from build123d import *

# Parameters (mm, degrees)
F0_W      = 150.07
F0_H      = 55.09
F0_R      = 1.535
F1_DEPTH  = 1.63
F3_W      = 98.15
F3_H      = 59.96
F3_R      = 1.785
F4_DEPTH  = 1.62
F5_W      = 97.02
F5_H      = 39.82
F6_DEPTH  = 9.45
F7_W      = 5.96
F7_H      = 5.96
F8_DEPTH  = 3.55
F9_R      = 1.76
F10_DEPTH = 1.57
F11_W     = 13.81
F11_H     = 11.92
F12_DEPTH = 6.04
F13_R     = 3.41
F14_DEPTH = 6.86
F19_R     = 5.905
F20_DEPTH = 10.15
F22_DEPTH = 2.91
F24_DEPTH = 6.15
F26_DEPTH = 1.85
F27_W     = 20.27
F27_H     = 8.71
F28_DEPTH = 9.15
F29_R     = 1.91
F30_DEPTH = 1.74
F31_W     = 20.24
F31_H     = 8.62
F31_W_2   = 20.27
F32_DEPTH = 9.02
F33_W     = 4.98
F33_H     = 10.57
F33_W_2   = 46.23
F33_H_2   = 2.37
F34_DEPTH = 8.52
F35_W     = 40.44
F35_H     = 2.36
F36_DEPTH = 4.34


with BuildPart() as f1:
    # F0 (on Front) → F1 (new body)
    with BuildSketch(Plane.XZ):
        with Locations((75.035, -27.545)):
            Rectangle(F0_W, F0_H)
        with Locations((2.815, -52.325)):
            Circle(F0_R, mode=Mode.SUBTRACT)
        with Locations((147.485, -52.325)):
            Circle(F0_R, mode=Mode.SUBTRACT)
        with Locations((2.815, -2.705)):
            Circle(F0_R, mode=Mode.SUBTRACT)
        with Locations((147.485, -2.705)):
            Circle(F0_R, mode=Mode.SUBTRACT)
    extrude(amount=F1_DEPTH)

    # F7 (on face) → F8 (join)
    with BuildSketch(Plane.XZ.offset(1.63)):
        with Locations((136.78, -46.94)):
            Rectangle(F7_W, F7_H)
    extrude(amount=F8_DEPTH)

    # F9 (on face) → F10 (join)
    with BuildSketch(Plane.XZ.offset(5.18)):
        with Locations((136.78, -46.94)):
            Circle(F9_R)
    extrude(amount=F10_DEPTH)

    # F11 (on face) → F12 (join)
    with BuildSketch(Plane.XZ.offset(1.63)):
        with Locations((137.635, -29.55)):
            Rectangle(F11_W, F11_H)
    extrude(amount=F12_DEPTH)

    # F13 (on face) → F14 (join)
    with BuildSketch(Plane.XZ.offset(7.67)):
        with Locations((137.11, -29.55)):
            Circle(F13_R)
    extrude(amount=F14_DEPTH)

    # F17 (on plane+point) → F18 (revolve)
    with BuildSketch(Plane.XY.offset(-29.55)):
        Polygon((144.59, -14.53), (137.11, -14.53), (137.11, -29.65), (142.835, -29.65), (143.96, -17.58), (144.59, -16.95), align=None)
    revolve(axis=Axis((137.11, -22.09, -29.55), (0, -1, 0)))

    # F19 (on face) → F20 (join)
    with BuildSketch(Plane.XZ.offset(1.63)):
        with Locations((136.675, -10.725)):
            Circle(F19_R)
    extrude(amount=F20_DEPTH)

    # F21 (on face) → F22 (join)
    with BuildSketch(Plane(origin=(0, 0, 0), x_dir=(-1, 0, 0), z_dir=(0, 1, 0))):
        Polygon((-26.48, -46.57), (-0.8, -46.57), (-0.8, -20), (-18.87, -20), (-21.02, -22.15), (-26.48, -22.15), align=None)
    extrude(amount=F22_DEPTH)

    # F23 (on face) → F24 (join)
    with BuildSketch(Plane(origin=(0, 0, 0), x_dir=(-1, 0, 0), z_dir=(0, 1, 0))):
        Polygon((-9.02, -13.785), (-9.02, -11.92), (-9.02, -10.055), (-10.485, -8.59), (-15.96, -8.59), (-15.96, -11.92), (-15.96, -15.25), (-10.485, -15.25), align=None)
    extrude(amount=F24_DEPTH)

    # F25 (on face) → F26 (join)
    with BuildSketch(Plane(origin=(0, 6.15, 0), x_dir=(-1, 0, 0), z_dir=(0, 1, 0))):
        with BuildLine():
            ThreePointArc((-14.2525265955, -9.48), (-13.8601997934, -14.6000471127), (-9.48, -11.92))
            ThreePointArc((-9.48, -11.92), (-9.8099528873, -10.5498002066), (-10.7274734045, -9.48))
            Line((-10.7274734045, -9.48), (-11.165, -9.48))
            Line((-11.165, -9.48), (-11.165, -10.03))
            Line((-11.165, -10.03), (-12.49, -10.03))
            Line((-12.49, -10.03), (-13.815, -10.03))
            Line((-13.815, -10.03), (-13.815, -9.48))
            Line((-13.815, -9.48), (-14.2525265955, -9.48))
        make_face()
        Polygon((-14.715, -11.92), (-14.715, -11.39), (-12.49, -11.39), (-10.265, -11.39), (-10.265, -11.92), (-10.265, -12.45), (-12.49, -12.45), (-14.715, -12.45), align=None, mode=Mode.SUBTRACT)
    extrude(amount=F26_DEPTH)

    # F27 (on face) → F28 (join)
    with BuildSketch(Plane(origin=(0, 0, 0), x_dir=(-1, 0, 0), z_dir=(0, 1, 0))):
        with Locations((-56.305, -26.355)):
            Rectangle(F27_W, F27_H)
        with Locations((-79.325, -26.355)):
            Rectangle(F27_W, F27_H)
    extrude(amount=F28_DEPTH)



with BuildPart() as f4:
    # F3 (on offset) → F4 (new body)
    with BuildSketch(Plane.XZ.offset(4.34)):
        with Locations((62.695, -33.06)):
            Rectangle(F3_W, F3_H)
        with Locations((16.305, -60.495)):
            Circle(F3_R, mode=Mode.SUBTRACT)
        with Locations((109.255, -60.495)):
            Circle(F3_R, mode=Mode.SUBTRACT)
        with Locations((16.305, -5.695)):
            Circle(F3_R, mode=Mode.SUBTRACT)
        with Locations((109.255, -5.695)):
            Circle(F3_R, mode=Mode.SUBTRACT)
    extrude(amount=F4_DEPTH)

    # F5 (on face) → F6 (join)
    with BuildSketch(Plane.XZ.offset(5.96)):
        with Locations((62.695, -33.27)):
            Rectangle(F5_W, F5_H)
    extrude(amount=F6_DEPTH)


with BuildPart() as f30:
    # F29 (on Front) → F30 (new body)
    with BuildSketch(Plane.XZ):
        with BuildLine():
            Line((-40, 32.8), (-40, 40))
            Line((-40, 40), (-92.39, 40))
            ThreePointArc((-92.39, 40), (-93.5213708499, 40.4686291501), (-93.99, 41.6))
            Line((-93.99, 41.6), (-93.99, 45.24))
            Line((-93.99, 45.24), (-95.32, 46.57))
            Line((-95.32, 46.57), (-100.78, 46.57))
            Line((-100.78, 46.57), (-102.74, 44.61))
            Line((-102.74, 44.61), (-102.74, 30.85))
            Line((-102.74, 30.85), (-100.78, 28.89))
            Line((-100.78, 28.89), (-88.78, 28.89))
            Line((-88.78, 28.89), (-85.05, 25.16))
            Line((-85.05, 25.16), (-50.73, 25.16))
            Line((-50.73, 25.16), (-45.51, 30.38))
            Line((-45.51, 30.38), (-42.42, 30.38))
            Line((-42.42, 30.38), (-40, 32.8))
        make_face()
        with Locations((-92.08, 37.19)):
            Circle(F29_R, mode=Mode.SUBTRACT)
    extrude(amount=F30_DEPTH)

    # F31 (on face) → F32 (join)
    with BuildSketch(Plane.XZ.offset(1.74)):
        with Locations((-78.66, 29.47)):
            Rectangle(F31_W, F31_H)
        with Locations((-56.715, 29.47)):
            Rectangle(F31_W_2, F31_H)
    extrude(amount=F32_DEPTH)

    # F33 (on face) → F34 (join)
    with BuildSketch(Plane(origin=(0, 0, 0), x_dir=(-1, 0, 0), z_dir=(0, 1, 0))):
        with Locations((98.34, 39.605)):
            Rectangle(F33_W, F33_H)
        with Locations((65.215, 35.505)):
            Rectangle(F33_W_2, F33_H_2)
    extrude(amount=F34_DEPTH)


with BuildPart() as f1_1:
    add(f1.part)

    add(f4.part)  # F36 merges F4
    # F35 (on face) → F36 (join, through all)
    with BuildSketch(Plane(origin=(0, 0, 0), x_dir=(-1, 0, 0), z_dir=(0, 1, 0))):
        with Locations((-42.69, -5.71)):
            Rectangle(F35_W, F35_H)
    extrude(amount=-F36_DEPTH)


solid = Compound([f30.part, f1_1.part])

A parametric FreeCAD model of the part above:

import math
import FreeCAD as App
import Part
import Sketcher

V = App.Vector
Q = App.Units.Quantity

doc = App.newDocument("Part")
params = doc.addObject("Spreadsheet::Sheet", "Params")
for row, (alias, value) in enumerate([
    ("sketch1_diameter", "3.07 mm"),
    ("sketch1_width", "150.07 mm"),
    ("sketch1_height", "55.09 mm"),
    ("pad1_length", "1.63 mm"),
    ("sketch2_width", "5.96 mm"),
    ("pad2_length", "3.55 mm"),
    ("sketch3_diameter", "3.52 mm"),
    ("pad3_length", "1.57 mm"),
    ("sketch4_width", "13.81 mm"),
    ("sketch4_height", "11.92 mm"),
    ("pad4_length", "6.04 mm"),
    ("sketch5_diameter", "6.82 mm"),
    ("pad5_length", "6.86 mm"),
    ("sketch6_width", "7.48 mm"),
    ("sketch6_height", "15.12 mm"),
    ("sketch6_height2", "2.42 mm"),
    ("revolution_angle", "360 deg"),
    ("sketch7_diameter", "11.81 mm"),
    ("pad6_length", "10.15 mm"),
    ("sketch8_width", "25.68 mm"),
    ("sketch8_width2", "18.07 mm"),
    ("sketch8_width3", "5.46 mm"),
    ("sketch8_height", "26.57 mm"),
    ("pad7_length", "2.91 mm"),
    ("sketch9_height", "3.73 mm"),
    ("sketch9_height2", "6.66 mm"),
    ("pad8_length", "6.15 mm"),
    ("sketch10_radius", "3.01 mm"),
    ("sketch10_width", "2.65 mm"),
    ("sketch10_width2", "4.45 mm"),
    ("sketch10_height", "0.55 mm"),
    ("sketch10_height2", "1.06 mm"),
    ("pad9_length", "1.85 mm"),
    ("sketch11_width", "20.27 mm"),
    ("sketch11_height", "8.71 mm"),
    ("pad10_length", "9.15 mm"),
    ("sketch12_diameter", "3.57 mm"),
    ("sketch12_width", "98.15 mm"),
    ("sketch12_height", "59.96 mm"),
    ("pad11_length", "1.62 mm"),
    ("sketch13_width", "97.02 mm"),
    ("sketch13_height", "39.82 mm"),
    ("pad12_length", "9.45 mm"),
    ("sketch14_radius", "1.6 mm"),
    ("sketch14_diameter", "3.82 mm"),
    ("sketch14_width", "12 mm"),
    ("sketch14_height", "7.2 mm"),
    ("sketch14_width2", "52.39 mm"),
    ("pad13_length", "1.74 mm"),
    ("sketch15_width", "20.24 mm"),
    ("sketch15_width2", "20.27 mm"),
    ("sketch15_height", "8.62 mm"),
    ("pad14_length", "9.02 mm"),
    ("sketch16_width", "4.98 mm"),
    ("sketch16_width2", "46.23 mm"),
    ("sketch16_height", "10.57 mm"),
    ("sketch16_height2", "2.37 mm"),
    ("pad15_length", "8.52 mm"),
    ("sketch17_width", "40.44 mm"),
    ("sketch17_height", "2.36 mm"),
], start=1):
    params.set(f"A{row}", alias)
    params.set(f"B{row}", "=" + value)
    params.setAlias(f"B{row}", alias)

body = doc.addObject("PartDesign::Body", "Body")

# Sketch on XZ plane
sketch1 = body.newObject("Sketcher::SketchObject", "Sketch")
sketch1.AttachmentSupport = (doc.getObject("XZ_Plane"), [""])
sketch1.MapMode = "FlatFace"
sketch1.addGeometry([
    Part.LineSegment(V(0, 0, 0), V(0, -55.1, 0)),  # 0
    Part.LineSegment(V(0, -55.1, 0), V(150.1, -55.1, 0)),  # 1
    Part.LineSegment(V(150.1, -55.1, 0), V(150.1, 0, 0)),  # 2
    Part.LineSegment(V(150.1, 0, 0), V(0, 0, 0)),  # 3
    Part.Circle(V(2.8, -52.3, 0), V(0, 0, 1), 1.5),  # 4
    Part.Circle(V(147.5, -52.3, 0), V(0, 0, 1), 1.5),  # 5
    Part.Circle(V(2.8, -2.7, 0), V(0, 0, 1), 1.5),  # 6
    Part.Circle(V(147.5, -2.7, 0), V(0, 0, 1), 1.5),  # 7
], False)
sketch1.addConstraint([
    Sketcher.Constraint("Coincident", 0, 2, 1, 1),
    Sketcher.Constraint("Coincident", 1, 2, 2, 1),
    Sketcher.Constraint("Coincident", 2, 2, 3, 1),
    Sketcher.Constraint("Coincident", 3, 2, 0, 1),
    Sketcher.Constraint("Vertical", 0),
    Sketcher.Constraint("Horizontal", 1),
    Sketcher.Constraint("Vertical", 2),
    Sketcher.Constraint("Horizontal", 3),
    Sketcher.Constraint("Coincident", 3, 2, -1, 1),
    Sketcher.Constraint("Equal", 4, 5),
    Sketcher.Constraint("Equal", 5, 6),
    Sketcher.Constraint("Equal", 6, 7),
    Sketcher.Constraint("Horizontal", 4, 3, 5, 3),
    Sketcher.Constraint("Horizontal", 6, 3, 7, 3),
    Sketcher.Constraint("Vertical", 4, 3, 6, 3),
    Sketcher.Constraint("Vertical", 5, 3, 7, 3),
    Sketcher.Constraint("Diameter", 4, 3.07),
    Sketcher.Constraint("DistanceX", 1, 1, 1, 2, 150.07),
    Sketcher.Constraint("DistanceY", 0, 2, 0, 1, 55.09),
    Sketcher.Constraint("DistanceX", 4, 3, 5, 3, 144.67),
    Sketcher.Constraint("DistanceY", 4, 3, 6, 3, 49.62),
    Sketcher.Constraint("DistanceX", -1, 1, 4, 3, 2.815),
    Sketcher.Constraint("DistanceY", 4, 3, -1, 1, 52.325),
])
sketch1.setExpression("Constraints[16]", "Params.sketch1_diameter")
sketch1.setExpression("Constraints[17]", "Params.sketch1_width")
sketch1.setExpression("Constraints[18]", "Params.sketch1_height")
pad1 = body.newObject("PartDesign::Pad", "Pad")
pad1.Profile = sketch1
pad1.setExpression("Length", "Params.pad1_length")

# Sketch on XZ plane
sketch2 = body.newObject("Sketcher::SketchObject", "Sketch001")
sketch2.AttachmentSupport = (doc.getObject("XZ_Plane"), [""])
sketch2.MapMode = "FlatFace"
sketch2.AttachmentOffset = App.Placement(V(0, 0, 1.63), App.Rotation())
sketch2.addGeometry([
    Part.LineSegment(V(134, -44, 0), V(134, -50, 0)),
    Part.LineSegment(V(134, -50, 0), V(140, -50, 0)),
    Part.LineSegment(V(140, -50, 0), V(140, -44, 0)),
    Part.LineSegment(V(140, -44, 0), V(134, -44, 0)),
], False)
sketch2.addConstraint([
    Sketcher.Constraint("Coincident", 0, 2, 1, 1),
    Sketcher.Constraint("Coincident", 1, 2, 2, 1),
    Sketcher.Constraint("Coincident", 2, 2, 3, 1),
    Sketcher.Constraint("Coincident", 3, 2, 0, 1),
    Sketcher.Constraint("Vertical", 0),
    Sketcher.Constraint("Horizontal", 1),
    Sketcher.Constraint("Vertical", 2),
    Sketcher.Constraint("Horizontal", 3),
    Sketcher.Constraint("Equal", 3, 0),
    Sketcher.Constraint("DistanceX", 1, 1, 1, 2, 5.96),
    Sketcher.Constraint("DistanceX", -1, 1, 0, 2, 133.8),
    Sketcher.Constraint("DistanceY", 0, 2, -1, 1, 49.92),
])
sketch2.setExpression("Constraints[9]", "Params.sketch2_width")
pad2 = body.newObject("PartDesign::Pad", "Pad001")
pad2.Profile = sketch2
pad2.setExpression("Length", "Params.pad2_length")

# Sketch on XZ plane
sketch3 = body.newObject("Sketcher::SketchObject", "Sketch002")
sketch3.AttachmentSupport = (doc.getObject("XZ_Plane"), [""])
sketch3.MapMode = "FlatFace"
sketch3.AttachmentOffset = App.Placement(V(0, 0, 5.18), App.Rotation())
sketch3.addGeometry(Part.Circle(V(136.8, -46.9, 0), V(0, 0, 1), 1.8), False)
sketch3.addConstraint([
    Sketcher.Constraint("Diameter", 0, 3.52),
    Sketcher.Constraint("DistanceX", -1, 1, 0, 3, 136.78),
    Sketcher.Constraint("DistanceY", 0, 3, -1, 1, 46.94),
])
sketch3.setExpression("Constraints[0]", "Params.sketch3_diameter")
pad3 = body.newObject("PartDesign::Pad", "Pad002")
pad3.Profile = sketch3
pad3.setExpression("Length", "Params.pad3_length")

# Sketch on XZ plane
sketch4 = body.newObject("Sketcher::SketchObject", "Sketch003")
sketch4.AttachmentSupport = (doc.getObject("XZ_Plane"), [""])
sketch4.MapMode = "FlatFace"
sketch4.AttachmentOffset = App.Placement(V(0, 0, 1.63), App.Rotation())
sketch4.addGeometry([
    Part.LineSegment(V(131, -24, 0), V(131, -36, 0)),
    Part.LineSegment(V(131, -36, 0), V(145, -36, 0)),
    Part.LineSegment(V(145, -36, 0), V(145, -24, 0)),
    Part.LineSegment(V(145, -24, 0), V(131, -24, 0)),
], False)
sketch4.addConstraint([
    Sketcher.Constraint("Coincident", 0, 2, 1, 1),
    Sketcher.Constraint("Coincident", 1, 2, 2, 1),
    Sketcher.Constraint("Coincident", 2, 2, 3, 1),
    Sketcher.Constraint("Coincident", 3, 2, 0, 1),
    Sketcher.Constraint("Vertical", 0),
    Sketcher.Constraint("Horizontal", 1),
    Sketcher.Constraint("Vertical", 2),
    Sketcher.Constraint("Horizontal", 3),
    Sketcher.Constraint("DistanceX", 1, 1, 1, 2, 13.81),
    Sketcher.Constraint("DistanceY", 0, 2, 0, 1, 11.92),
    Sketcher.Constraint("DistanceX", -1, 1, 0, 2, 130.73),
    Sketcher.Constraint("DistanceY", 0, 2, -1, 1, 35.51),
])
sketch4.setExpression("Constraints[8]", "Params.sketch4_width")
sketch4.setExpression("Constraints[9]", "Params.sketch4_height")
pad4 = body.newObject("PartDesign::Pad", "Pad003")
pad4.Profile = sketch4
pad4.setExpression("Length", "Params.pad4_length")

# Sketch on XZ plane
sketch5 = body.newObject("Sketcher::SketchObject", "Sketch004")
sketch5.AttachmentSupport = (doc.getObject("XZ_Plane"), [""])
sketch5.MapMode = "FlatFace"
sketch5.AttachmentOffset = App.Placement(V(0, 0, 7.67), App.Rotation())
sketch5.addGeometry(Part.Circle(V(137.1, -29.6, 0), V(0, 0, 1), 3.4), False)
sketch5.addConstraint([
    Sketcher.Constraint("Diameter", 0, 6.82),
    Sketcher.Constraint("DistanceX", -1, 1, 0, 3, 137.11),
    Sketcher.Constraint("DistanceY", 0, 3, -1, 1, 29.55),
])
sketch5.setExpression("Constraints[0]", "Params.sketch5_diameter")
pad5 = body.newObject("PartDesign::Pad", "Pad004")
pad5.Profile = sketch5
pad5.setExpression("Length", "Params.pad5_length")

# Sketch on XY plane
sketch6 = body.newObject("Sketcher::SketchObject", "Sketch005")
sketch6.AttachmentSupport = (doc.getObject("XY_Plane"), [""])
sketch6.MapMode = "FlatFace"
sketch6.AttachmentOffset = App.Placement(V(0, 0, -29.55), App.Rotation())
sketch6.addGeometry([
    Part.LineSegment(V(144.6, -14.5, 0), V(137.1, -14.5, 0)),  # 0
    Part.LineSegment(V(137.1, -14.5, 0), V(137.1, -29.6, 0)),  # 1
    Part.LineSegment(V(137.1, -29.6, 0), V(142.8, -29.6, 0)),  # 2
    Part.LineSegment(V(142.8, -29.6, 0), V(144, -17.6, 0)),  # 3
    Part.LineSegment(V(144, -17.6, 0), V(144.6, -16.9, 0)),  # 4
    Part.LineSegment(V(144.6, -16.9, 0), V(144.6, -14.5, 0)),  # 5
], False)
sketch6.addGeometry(Part.LineSegment(V(137.1, -14.5, 0), V(137.1, -29.6, 0)), True)  # axis
sketch6.addConstraint([
    Sketcher.Constraint("Coincident", 0, 2, 1, 1),
    Sketcher.Constraint("Coincident", 1, 2, 2, 1),
    Sketcher.Constraint("Coincident", 2, 2, 3, 1),
    Sketcher.Constraint("Coincident", 3, 2, 4, 1),
    Sketcher.Constraint("Coincident", 4, 2, 5, 1),
    Sketcher.Constraint("Coincident", 5, 2, 0, 1),
    Sketcher.Constraint("Horizontal", 0),
    Sketcher.Constraint("Vertical", 1),
    Sketcher.Constraint("Horizontal", 2),
    Sketcher.Constraint("Vertical", 5),
    Sketcher.Constraint("Vertical", 6),
    Sketcher.Constraint("Coincident", 6, 1, 0, 2),
    Sketcher.Constraint("Horizontal", 2, 2, 6, 2),
    Sketcher.Constraint("Angle", 4, Q("45 deg")),
    Sketcher.Constraint("DistanceX", 0, 2, 0, 1, 7.48),
    Sketcher.Constraint("DistanceY", 1, 2, 1, 1, 15.12),
    Sketcher.Constraint("DistanceY", 5, 1, 5, 2, 2.42),
    Sketcher.Constraint("DistanceX", 2, 1, 2, 2, 5.725),
    Sketcher.Constraint("DistanceX", -1, 1, 0, 2, 137.11),
    Sketcher.Constraint("DistanceY", 0, 2, -1, 1, 14.53),
    Sketcher.Constraint("DistanceX", -1, 1, 3, 2, 143.96),
])
sketch6.setExpression("Constraints[14]", "Params.sketch6_width")
sketch6.setExpression("Constraints[15]", "Params.sketch6_height")
sketch6.setExpression("Constraints[16]", "Params.sketch6_height2")
revolution = body.newObject("PartDesign::Revolution", "Revolution")
revolution.Profile = sketch6
revolution.ReferenceAxis = (sketch6, ["Axis0"])
revolution.setExpression("Angle", "Params.revolution_angle")

# Sketch on XZ plane
sketch7 = body.newObject("Sketcher::SketchObject", "Sketch006")
sketch7.AttachmentSupport = (doc.getObject("XZ_Plane"), [""])
sketch7.MapMode = "FlatFace"
sketch7.AttachmentOffset = App.Placement(V(0, 0, 1.63), App.Rotation())
sketch7.addGeometry(Part.Circle(V(137, -11, 0), V(0, 0, 1), 6), False)
sketch7.addConstraint([
    Sketcher.Constraint("Diameter", 0, 11.81),
    Sketcher.Constraint("DistanceX", -1, 1, 0, 3, 136.675),
    Sketcher.Constraint("DistanceY", 0, 3, -1, 1, 10.725),
])
sketch7.setExpression("Constraints[0]", "Params.sketch7_diameter")
pad6 = body.newObject("PartDesign::Pad", "Pad005")
pad6.Profile = sketch7
pad6.setExpression("Length", "Params.pad6_length")

# Sketch on XZ plane
sketch8 = body.newObject("Sketcher::SketchObject", "Sketch007")
sketch8.AttachmentSupport = (doc.getObject("XZ_Plane"), [""])
sketch8.MapMode = "FlatFace"
sketch8.addGeometry([
    Part.LineSegment(V(26.5, -46.6, 0), V(0.8, -46.6, 0)),  # 0
    Part.LineSegment(V(0.8, -46.6, 0), V(0.8, -20, 0)),  # 1
    Part.LineSegment(V(0.8, -20, 0), V(18.9, -20, 0)),  # 2
    Part.LineSegment(V(18.9, -20, 0), V(21, -22.1, 0)),  # 3
    Part.LineSegment(V(21, -22.1, 0), V(26.5, -22.1, 0)),  # 4
    Part.LineSegment(V(26.5, -22.1, 0), V(26.5, -46.6, 0)),  # 5
], False)
sketch8.addConstraint([
    Sketcher.Constraint("Coincident", 0, 2, 1, 1),
    Sketcher.Constraint("Coincident", 1, 2, 2, 1),
    Sketcher.Constraint("Coincident", 2, 2, 3, 1),
    Sketcher.Constraint("Coincident", 3, 2, 4, 1),
    Sketcher.Constraint("Coincident", 4, 2, 5, 1),
    Sketcher.Constraint("Coincident", 5, 2, 0, 1),
    Sketcher.Constraint("Horizontal", 0),
    Sketcher.Constraint("Vertical", 1),
    Sketcher.Constraint("Horizontal", 2),
    Sketcher.Constraint("Horizontal", 4),
    Sketcher.Constraint("Vertical", 5),
    Sketcher.Constraint("Angle", 3, Q("-45 deg")),
    Sketcher.Constraint("DistanceY", 1, 2, -1, 1, 20.0),
    Sketcher.Constraint("DistanceX", 0, 2, 0, 1, 25.68),
    Sketcher.Constraint("DistanceX", 2, 1, 2, 2, 18.07),
    Sketcher.Constraint("DistanceX", 4, 1, 4, 2, 5.46),
    Sketcher.Constraint("DistanceY", 1, 1, 1, 2, 26.57),
    Sketcher.Constraint("DistanceX", -1, 1, 0, 2, 0.8),
])
sketch8.setExpression("Constraints[13]", "Params.sketch8_width")
sketch8.setExpression("Constraints[14]", "Params.sketch8_width2")
sketch8.setExpression("Constraints[15]", "Params.sketch8_width3")
sketch8.setExpression("Constraints[16]", "Params.sketch8_height")
pad7 = body.newObject("PartDesign::Pad", "Pad006")
pad7.Profile = sketch8
pad7.setExpression("Length", "Params.pad7_length")
pad7.Reversed = True

# Sketch on XZ plane
sketch9 = body.newObject("Sketcher::SketchObject", "Sketch008")
sketch9.AttachmentSupport = (doc.getObject("XZ_Plane"), [""])
sketch9.MapMode = "FlatFace"
sketch9.addGeometry([
    Part.LineSegment(V(9, -13.8, 0), V(9, -10.1, 0)),  # 0
    Part.LineSegment(V(9, -10.1, 0), V(10.5, -8.6, 0)),  # 1
    Part.LineSegment(V(10.5, -8.6, 0), V(16, -8.6, 0)),  # 2
    Part.LineSegment(V(16, -8.6, 0), V(16, -15.2, 0)),  # 3
    Part.LineSegment(V(16, -15.2, 0), V(10.5, -15.2, 0)),  # 4
    Part.LineSegment(V(10.5, -15.2, 0), V(9, -13.8, 0)),  # 5
], False)
sketch9.addConstraint([
    Sketcher.Constraint("Coincident", 0, 2, 1, 1),
    Sketcher.Constraint("Coincident", 1, 2, 2, 1),
    Sketcher.Constraint("Coincident", 2, 2, 3, 1),
    Sketcher.Constraint("Coincident", 3, 2, 4, 1),
    Sketcher.Constraint("Coincident", 4, 2, 5, 1),
    Sketcher.Constraint("Coincident", 5, 2, 0, 1),
    Sketcher.Constraint("Vertical", 0),
    Sketcher.Constraint("Horizontal", 2),
    Sketcher.Constraint("Vertical", 3),
    Sketcher.Constraint("Horizontal", 4),
    Sketcher.Constraint("Perpendicular", 1, 5),
    Sketcher.Constraint("Vertical", 1, 2, 4, 2),
    Sketcher.Constraint("Equal", 1, 5),
    Sketcher.Constraint("DistanceY", 0, 1, 0, 2, 3.73),
    Sketcher.Constraint("DistanceY", 3, 2, 3, 1, 6.66),
    Sketcher.Constraint("DistanceX", 2, 1, 2, 2, 5.475),
    Sketcher.Constraint("DistanceX", -1, 1, 0, 2, 9.02),
    Sketcher.Constraint("DistanceY", 1, 2, -1, 1, 8.59),
])
sketch9.setExpression("Constraints[13]", "Params.sketch9_height")
sketch9.setExpression("Constraints[14]", "Params.sketch9_height2")
pad8 = body.newObject("PartDesign::Pad", "Pad007")
pad8.Profile = sketch9
pad8.setExpression("Length", "Params.pad8_length")
pad8.Reversed = True

# Sketch on XZ plane
sketch10 = body.newObject("Sketcher::SketchObject", "Sketch009")
sketch10.AttachmentSupport = (doc.getObject("XZ_Plane"), [""])
sketch10.MapMode = "FlatFace"
sketch10.AttachmentOffset = App.Placement(V(0, 0, -6.15), App.Rotation())
sketch10.addGeometry([
    Part.ArcOfCircle(Part.Circle(V(12.49, -11.92, 0), V(0, 0, 1), 3.01), math.radians(180), math.radians(414)),  # 0
    Part.ArcOfCircle(Part.Circle(V(12.49, -11.92, 0), V(0, 0, 1), 3.01), math.radians(126), math.radians(180)),  # 1
    Part.LineSegment(V(10.73, -9.48, 0), V(11.16, -9.48, 0)),  # 2
    Part.LineSegment(V(11.16, -9.48, 0), V(11.16, -10.03, 0)),  # 3
    Part.LineSegment(V(11.16, -10.03, 0), V(13.81, -10.03, 0)),  # 4
    Part.LineSegment(V(13.81, -10.03, 0), V(13.81, -9.48, 0)),  # 5
    Part.LineSegment(V(13.81, -9.48, 0), V(14.25, -9.48, 0)),  # 6
    Part.LineSegment(V(14.71, -12.45, 0), V(14.71, -11.39, 0)),  # 7
    Part.LineSegment(V(14.71, -11.39, 0), V(10.27, -11.39, 0)),  # 8
    Part.LineSegment(V(10.27, -11.39, 0), V(10.27, -12.45, 0)),  # 9
    Part.LineSegment(V(10.27, -12.45, 0), V(14.71, -12.45, 0)),  # 10
], False)
sketch10.addConstraint([
    Sketcher.Constraint("Tangent", 0, 1, 1, 2),
    Sketcher.Constraint("Coincident", 1, 1, 2, 1),
    Sketcher.Constraint("Coincident", 2, 2, 3, 1),
    Sketcher.Constraint("Coincident", 3, 2, 4, 1),
    Sketcher.Constraint("Coincident", 4, 2, 5, 1),
    Sketcher.Constraint("Coincident", 5, 2, 6, 1),
    Sketcher.Constraint("Coincident", 6, 2, 0, 2),
    Sketcher.Constraint("Coincident", 7, 2, 8, 1),
    Sketcher.Constraint("Coincident", 8, 2, 9, 1),
    Sketcher.Constraint("Coincident", 9, 2, 10, 1),
    Sketcher.Constraint("Coincident", 10, 2, 7, 1),
    Sketcher.Constraint("Horizontal", 2),
    Sketcher.Constraint("Vertical", 3),
    Sketcher.Constraint("Horizontal", 4),
    Sketcher.Constraint("Vertical", 5),
    Sketcher.Constraint("Horizontal", 6),
    Sketcher.Constraint("Vertical", 7),
    Sketcher.Constraint("Horizontal", 8),
    Sketcher.Constraint("Vertical", 9),
    Sketcher.Constraint("Horizontal", 10),
    Sketcher.Constraint("Equal", 0, 1),
    Sketcher.Constraint("Horizontal", 1, 3, 0, 1),
    Sketcher.Constraint("Horizontal", 2, 2, 5, 2),
    Sketcher.Constraint("Equal", 2, 6),
    Sketcher.Constraint("Radius", 0, 3.01),
    Sketcher.Constraint("DistanceX", 4, 1, 4, 2, 2.65),
    Sketcher.Constraint("DistanceX", 8, 2, 8, 1, 4.45),
    Sketcher.Constraint("DistanceY", 3, 2, 3, 1, 0.55),
    Sketcher.Constraint("DistanceY", 7, 1, 7, 2, 1.06),
    Sketcher.Constraint("DistanceX", 4, 2, 7, 2, 0.9),
    Sketcher.Constraint("DistanceX", -1, 1, 0, 3, 12.49),
    Sketcher.Constraint("DistanceY", 0, 3, -1, 1, 11.92),
    Sketcher.Constraint("DistanceY", 1, 1, -1, 1, 9.48),
    Sketcher.Constraint("DistanceY", 7, 2, -1, 1, 11.39),
])
sketch10.setExpression("Constraints[24]", "Params.sketch10_radius")
sketch10.setExpression("Constraints[25]", "Params.sketch10_width")
sketch10.setExpression("Constraints[26]", "Params.sketch10_width2")
sketch10.setExpression("Constraints[27]", "Params.sketch10_height")
sketch10.setExpression("Constraints[28]", "Params.sketch10_height2")
pad9 = body.newObject("PartDesign::Pad", "Pad008")
pad9.Profile = sketch10
pad9.setExpression("Length", "Params.pad9_length")
pad9.Reversed = True

# Sketch on XZ plane
sketch11 = body.newObject("Sketcher::SketchObject", "Sketch010")
sketch11.AttachmentSupport = (doc.getObject("XZ_Plane"), [""])
sketch11.MapMode = "FlatFace"
sketch11.addGeometry([
    Part.LineSegment(V(66, -22, 0), V(66, -31, 0)),  # 0
    Part.LineSegment(V(66, -31, 0), V(46, -31, 0)),  # 1
    Part.LineSegment(V(46, -31, 0), V(46, -22, 0)),  # 2
    Part.LineSegment(V(46, -22, 0), V(66, -22, 0)),  # 3
    Part.LineSegment(V(89, -22, 0), V(89, -31, 0)),  # 4
    Part.LineSegment(V(89, -31, 0), V(69, -31, 0)),  # 5
    Part.LineSegment(V(69, -31, 0), V(69, -22, 0)),  # 6
    Part.LineSegment(V(69, -22, 0), V(89, -22, 0)),  # 7
], False)
sketch11.addConstraint([
    Sketcher.Constraint("Coincident", 0, 2, 1, 1),
    Sketcher.Constraint("Coincident", 1, 2, 2, 1),
    Sketcher.Constraint("Coincident", 2, 2, 3, 1),
    Sketcher.Constraint("Coincident", 3, 2, 0, 1),
    Sketcher.Constraint("Coincident", 4, 2, 5, 1),
    Sketcher.Constraint("Coincident", 5, 2, 6, 1),
    Sketcher.Constraint("Coincident", 6, 2, 7, 1),
    Sketcher.Constraint("Coincident", 7, 2, 4, 1),
    Sketcher.Constraint("Vertical", 0),
    Sketcher.Constraint("Horizontal", 1),
    Sketcher.Constraint("Vertical", 2),
    Sketcher.Constraint("Horizontal", 3),
    Sketcher.Constraint("Vertical", 4),
    Sketcher.Constraint("Horizontal", 5),
    Sketcher.Constraint("Vertical", 6),
    Sketcher.Constraint("Horizontal", 7),
    Sketcher.Constraint("Horizontal", 1, 2, 4, 2),
    Sketcher.Constraint("Horizontal", 3, 2, 6, 2),
    Sketcher.Constraint("Equal", 3, 5),
    Sketcher.Constraint("DistanceY", 2, 2, -1, 1, 22.0),
    Sketcher.Constraint("DistanceX", 1, 2, 1, 1, 20.27),
    Sketcher.Constraint("DistanceY", 0, 2, 0, 1, 8.71),
    Sketcher.Constraint("DistanceX", -1, 1, 0, 2, 66.44),
    Sketcher.Constraint("DistanceX", -1, 1, 4, 2, 89.46),
])
sketch11.setExpression("Constraints[20]", "Params.sketch11_width")
sketch11.setExpression("Constraints[21]", "Params.sketch11_height")
pad10 = body.newObject("PartDesign::Pad", "Pad009")
pad10.Profile = sketch11
pad10.setExpression("Length", "Params.pad10_length")
pad10.Reversed = True
body2 = doc.addObject("PartDesign::Body", "Body001")

# Sketch on XZ plane
sketch12 = body2.newObject("Sketcher::SketchObject", "Sketch011")
sketch12.AttachmentSupport = (doc.getObject("XZ_Plane001"), [""])
sketch12.MapMode = "FlatFace"
sketch12.AttachmentOffset = App.Placement(V(0, 0, 4.34), App.Rotation())
sketch12.addGeometry([
    Part.LineSegment(V(13.6, -3.1, 0), V(13.6, -63, 0)),  # 0
    Part.LineSegment(V(13.6, -63, 0), V(111.8, -63, 0)),  # 1
    Part.LineSegment(V(111.8, -63, 0), V(111.8, -3.1, 0)),  # 2
    Part.LineSegment(V(111.8, -3.1, 0), V(13.6, -3.1, 0)),  # 3
    Part.Circle(V(16.3, -60.5, 0), V(0, 0, 1), 1.8),  # 4
    Part.Circle(V(109.3, -60.5, 0), V(0, 0, 1), 1.8),  # 5
    Part.Circle(V(16.3, -5.7, 0), V(0, 0, 1), 1.8),  # 6
    Part.Circle(V(109.3, -5.7, 0), V(0, 0, 1), 1.8),  # 7
], False)
sketch12.addConstraint([
    Sketcher.Constraint("Coincident", 0, 2, 1, 1),
    Sketcher.Constraint("Coincident", 1, 2, 2, 1),
    Sketcher.Constraint("Coincident", 2, 2, 3, 1),
    Sketcher.Constraint("Coincident", 3, 2, 0, 1),
    Sketcher.Constraint("Vertical", 0),
    Sketcher.Constraint("Horizontal", 1),
    Sketcher.Constraint("Vertical", 2),
    Sketcher.Constraint("Horizontal", 3),
    Sketcher.Constraint("Equal", 4, 5),
    Sketcher.Constraint("Equal", 5, 6),
    Sketcher.Constraint("Equal", 6, 7),
    Sketcher.Constraint("Horizontal", 4, 3, 5, 3),
    Sketcher.Constraint("Horizontal", 6, 3, 7, 3),
    Sketcher.Constraint("Vertical", 4, 3, 6, 3),
    Sketcher.Constraint("Vertical", 5, 3, 7, 3),
    Sketcher.Constraint("Diameter", 4, 3.57),
    Sketcher.Constraint("DistanceX", 1, 1, 1, 2, 98.15),
    Sketcher.Constraint("DistanceY", 0, 2, 0, 1, 59.96),
    Sketcher.Constraint("DistanceY", 4, 3, 6, 3, 54.8),
    Sketcher.Constraint("DistanceX", -1, 1, 0, 2, 13.62),
    Sketcher.Constraint("DistanceY", 0, 2, -1, 1, 63.04),
    Sketcher.Constraint("DistanceX", 4, 3, 5, 3, 92.95),
    Sketcher.Constraint("DistanceX", -1, 1, 4, 3, 16.305),
    Sketcher.Constraint("DistanceY", 4, 3, -1, 1, 60.495),
])
sketch12.setExpression("Constraints[15]", "Params.sketch12_diameter")
sketch12.setExpression("Constraints[16]", "Params.sketch12_width")
sketch12.setExpression("Constraints[17]", "Params.sketch12_height")
pad11 = body2.newObject("PartDesign::Pad", "Pad010")
pad11.Profile = sketch12
pad11.setExpression("Length", "Params.pad11_length")

# Sketch on XZ plane
sketch13 = body2.newObject("Sketcher::SketchObject", "Sketch012")
sketch13.AttachmentSupport = (doc.getObject("XZ_Plane001"), [""])
sketch13.MapMode = "FlatFace"
sketch13.AttachmentOffset = App.Placement(V(0, 0, 5.96), App.Rotation())
sketch13.addGeometry([
    Part.LineSegment(V(14, -13, 0), V(14, -53, 0)),
    Part.LineSegment(V(14, -53, 0), V(111, -53, 0)),
    Part.LineSegment(V(111, -53, 0), V(111, -13, 0)),
    Part.LineSegment(V(111, -13, 0), V(14, -13, 0)),
], False)
sketch13.addConstraint([
    Sketcher.Constraint("Coincident", 0, 2, 1, 1),
    Sketcher.Constraint("Coincident", 1, 2, 2, 1),
    Sketcher.Constraint("Coincident", 2, 2, 3, 1),
    Sketcher.Constraint("Coincident", 3, 2, 0, 1),
    Sketcher.Constraint("Vertical", 0),
    Sketcher.Constraint("Horizontal", 1),
    Sketcher.Constraint("Vertical", 2),
    Sketcher.Constraint("Horizontal", 3),
    Sketcher.Constraint("DistanceX", 1, 1, 1, 2, 97.02),
    Sketcher.Constraint("DistanceY", 0, 2, 0, 1, 39.82),
    Sketcher.Constraint("DistanceY", 0, 2, -1, 1, 53.18),
    Sketcher.Constraint("DistanceX", -1, 1, 0, 2, 14.185),
])
sketch13.setExpression("Constraints[8]", "Params.sketch13_width")
sketch13.setExpression("Constraints[9]", "Params.sketch13_height")
pad12 = body2.newObject("PartDesign::Pad", "Pad011")
pad12.Profile = sketch13
pad12.setExpression("Length", "Params.pad12_length")
body3 = doc.addObject("PartDesign::Body", "Body002")

# Sketch on XZ plane
sketch14 = body3.newObject("Sketcher::SketchObject", "Sketch013")
sketch14.AttachmentSupport = (doc.getObject("XZ_Plane002"), [""])
sketch14.MapMode = "FlatFace"
sketch14.addGeometry([
    Part.LineSegment(V(-40, 32.8, 0), V(-40, 40, 0)),  # 0
    Part.LineSegment(V(-40, 40, 0), V(-92.4, 40, 0)),  # 1
    Part.ArcOfCircle(Part.Circle(V(-92.4, 41.6, 0), V(0, 0, 1), 1.6), math.radians(180), math.radians(270)),  # 2
    Part.LineSegment(V(-94, 41.6, 0), V(-94, 45.2, 0)),  # 3
    Part.LineSegment(V(-94, 45.2, 0), V(-95.3, 46.6, 0)),  # 4
    Part.LineSegment(V(-95.3, 46.6, 0), V(-100.8, 46.6, 0)),  # 5
    Part.LineSegment(V(-100.8, 46.6, 0), V(-102.7, 44.6, 0)),  # 6
    Part.LineSegment(V(-102.7, 44.6, 0), V(-102.7, 30.9, 0)),  # 7
    Part.LineSegment(V(-102.7, 30.9, 0), V(-100.8, 28.9, 0)),  # 8
    Part.LineSegment(V(-100.8, 28.9, 0), V(-88.8, 28.9, 0)),  # 9
    Part.LineSegment(V(-88.8, 28.9, 0), V(-85, 25.2, 0)),  # 10
    Part.LineSegment(V(-85, 25.2, 0), V(-50.7, 25.2, 0)),  # 11
    Part.LineSegment(V(-50.7, 25.2, 0), V(-45.5, 30.4, 0)),  # 12
    Part.LineSegment(V(-45.5, 30.4, 0), V(-42.4, 30.4, 0)),  # 13
    Part.LineSegment(V(-42.4, 30.4, 0), V(-40, 32.8, 0)),  # 14
    Part.Circle(V(-92.1, 37.2, 0), V(0, 0, 1), 1.9),  # 15
], False)
sketch14.addConstraint([
    Sketcher.Constraint("Coincident", 0, 2, 1, 1),
    Sketcher.Constraint("Tangent", 1, 2, 2, 2),
    Sketcher.Constraint("Tangent", 2, 1, 3, 1),
    Sketcher.Constraint("Coincident", 3, 2, 4, 1),
    Sketcher.Constraint("Coincident", 4, 2, 5, 1),
    Sketcher.Constraint("Coincident", 5, 2, 6, 1),
    Sketcher.Constraint("Coincident", 6, 2, 7, 1),
    Sketcher.Constraint("Coincident", 7, 2, 8, 1),
    Sketcher.Constraint("Coincident", 8, 2, 9, 1),
    Sketcher.Constraint("Coincident", 9, 2, 10, 1),
    Sketcher.Constraint("Coincident", 10, 2, 11, 1),
    Sketcher.Constraint("Coincident", 11, 2, 12, 1),
    Sketcher.Constraint("Coincident", 12, 2, 13, 1),
    Sketcher.Constraint("Coincident", 13, 2, 14, 1),
    Sketcher.Constraint("Coincident", 14, 2, 0, 1),
    Sketcher.Constraint("Vertical", 0),
    Sketcher.Constraint("Horizontal", 1),
    Sketcher.Constraint("Vertical", 3),
    Sketcher.Constraint("Horizontal", 5),
    Sketcher.Constraint("Vertical", 7),
    Sketcher.Constraint("Horizontal", 9),
    Sketcher.Constraint("Horizontal", 11),
    Sketcher.Constraint("Horizontal", 13),
    Sketcher.Constraint("Perpendicular", 4, 6),
    Sketcher.Constraint("Perpendicular", 6, 8),
    Sketcher.Constraint("Parallel", 8, 10),
    Sketcher.Constraint("Perpendicular", 10, 12),
    Sketcher.Constraint("Parallel", 12, 14),
    Sketcher.Constraint("Vertical", 5, 2, 8, 2),
    Sketcher.Constraint("Equal", 6, 8),
    Sketcher.Constraint("Radius", 2, 1.6),
    Sketcher.Constraint("Diameter", 15, 3.82),
    Sketcher.Constraint("DistanceX", 9, 1, 9, 2, 12.0),
    Sketcher.Constraint("DistanceY", 0, 1, 0, 2, 7.2),
    Sketcher.Constraint("DistanceX", 0, 2, -1, 1, 40.0),
    Sketcher.Constraint("DistanceY", -1, 1, 0, 2, 40.0),
    Sketcher.Constraint("DistanceX", 1, 2, 1, 1, 52.39),
    Sketcher.Constraint("DistanceX", 5, 2, 5, 1, 5.46),
    Sketcher.Constraint("DistanceX", 11, 1, 11, 2, 34.32),
    Sketcher.Constraint("DistanceX", 13, 1, 13, 2, 3.09),
    Sketcher.Constraint("DistanceY", 3, 1, 3, 2, 3.64),
    Sketcher.Constraint("DistanceY", 7, 2, 7, 1, 13.76),
    Sketcher.Constraint("DistanceX", 8, 2, 15, 3, 8.7),
    Sketcher.Constraint("DistanceY", 8, 2, 15, 3, 8.3),
    Sketcher.Constraint("DistanceX", 15, 3, -1, 1, 92.08),
    Sketcher.Constraint("DistanceY", -1, 1, 15, 3, 37.19),
    Sketcher.Constraint("DistanceX", 12, 2, -1, 1, 45.51),
])
sketch14.setExpression("Constraints[30]", "Params.sketch14_radius")
sketch14.setExpression("Constraints[31]", "Params.sketch14_diameter")
sketch14.setExpression("Constraints[32]", "Params.sketch14_width")
sketch14.setExpression("Constraints[33]", "Params.sketch14_height")
sketch14.setExpression("Constraints[36]", "Params.sketch14_width2")
pad13 = body3.newObject("PartDesign::Pad", "Pad012")
pad13.Profile = sketch14
pad13.setExpression("Length", "Params.pad13_length")

# Sketch on XZ plane
sketch15 = body3.newObject("Sketcher::SketchObject", "Sketch014")
sketch15.AttachmentSupport = (doc.getObject("XZ_Plane002"), [""])
sketch15.MapMode = "FlatFace"
sketch15.AttachmentOffset = App.Placement(V(0, 0, 1.74), App.Rotation())
sketch15.addGeometry([
    Part.LineSegment(V(-89, 34, 0), V(-89, 25, 0)),  # 0
    Part.LineSegment(V(-89, 25, 0), V(-69, 25, 0)),  # 1
    Part.LineSegment(V(-69, 25, 0), V(-69, 34, 0)),  # 2
    Part.LineSegment(V(-69, 34, 0), V(-89, 34, 0)),  # 3
    Part.LineSegment(V(-67, 34, 0), V(-67, 25, 0)),  # 4
    Part.LineSegment(V(-67, 25, 0), V(-47, 25, 0)),  # 5
    Part.LineSegment(V(-47, 25, 0), V(-47, 34, 0)),  # 6
    Part.LineSegment(V(-47, 34, 0), V(-67, 34, 0)),  # 7
], False)
sketch15.addConstraint([
    Sketcher.Constraint("Coincident", 0, 2, 1, 1),
    Sketcher.Constraint("Coincident", 1, 2, 2, 1),
    Sketcher.Constraint("Coincident", 2, 2, 3, 1),
    Sketcher.Constraint("Coincident", 3, 2, 0, 1),
    Sketcher.Constraint("Coincident", 4, 2, 5, 1),
    Sketcher.Constraint("Coincident", 5, 2, 6, 1),
    Sketcher.Constraint("Coincident", 6, 2, 7, 1),
    Sketcher.Constraint("Coincident", 7, 2, 4, 1),
    Sketcher.Constraint("Vertical", 0),
    Sketcher.Constraint("Horizontal", 1),
    Sketcher.Constraint("Vertical", 2),
    Sketcher.Constraint("Horizontal", 3),
    Sketcher.Constraint("Vertical", 4),
    Sketcher.Constraint("Horizontal", 5),
    Sketcher.Constraint("Vertical", 6),
    Sketcher.Constraint("Horizontal", 7),
    Sketcher.Constraint("Horizontal", 1, 2, 4, 2),
    Sketcher.Constraint("Horizontal", 3, 2, 6, 2),
    Sketcher.Constraint("DistanceX", 1, 1, 1, 2, 20.24),
    Sketcher.Constraint("DistanceX", 5, 1, 5, 2, 20.27),
    Sketcher.Constraint("DistanceY", 0, 2, 0, 1, 8.62),
    Sketcher.Constraint("DistanceX", 0, 2, 5, 2, 42.2),
    Sketcher.Constraint("DistanceX", 0, 2, -1, 1, 88.78),
    Sketcher.Constraint("DistanceY", -1, 1, 0, 2, 25.16),
])
sketch15.setExpression("Constraints[18]", "Params.sketch15_width")
sketch15.setExpression("Constraints[19]", "Params.sketch15_width2")
sketch15.setExpression("Constraints[20]", "Params.sketch15_height")
pad14 = body3.newObject("PartDesign::Pad", "Pad013")
pad14.Profile = sketch15
pad14.setExpression("Length", "Params.pad14_length")

# Sketch on XZ plane
sketch16 = body3.newObject("Sketcher::SketchObject", "Sketch015")
sketch16.AttachmentSupport = (doc.getObject("XZ_Plane002"), [""])
sketch16.MapMode = "FlatFace"
sketch16.addGeometry([
    Part.LineSegment(V(-95.8, 44.9, 0), V(-95.8, 34.3, 0)),  # 0
    Part.LineSegment(V(-95.8, 34.3, 0), V(-100.8, 34.3, 0)),  # 1
    Part.LineSegment(V(-100.8, 34.3, 0), V(-100.8, 44.9, 0)),  # 2
    Part.LineSegment(V(-100.8, 44.9, 0), V(-95.8, 44.9, 0)),  # 3
    Part.LineSegment(V(-42.1, 36.7, 0), V(-42.1, 34.3, 0)),  # 4
    Part.LineSegment(V(-42.1, 34.3, 0), V(-88.3, 34.3, 0)),  # 5
    Part.LineSegment(V(-88.3, 34.3, 0), V(-88.3, 36.7, 0)),  # 6
    Part.LineSegment(V(-88.3, 36.7, 0), V(-42.1, 36.7, 0)),  # 7
], False)
sketch16.addConstraint([
    Sketcher.Constraint("Coincident", 0, 2, 1, 1),
    Sketcher.Constraint("Coincident", 1, 2, 2, 1),
    Sketcher.Constraint("Coincident", 2, 2, 3, 1),
    Sketcher.Constraint("Coincident", 3, 2, 0, 1),
    Sketcher.Constraint("Coincident", 4, 2, 5, 1),
    Sketcher.Constraint("Coincident", 5, 2, 6, 1),
    Sketcher.Constraint("Coincident", 6, 2, 7, 1),
    Sketcher.Constraint("Coincident", 7, 2, 4, 1),
    Sketcher.Constraint("Vertical", 0),
    Sketcher.Constraint("Horizontal", 1),
    Sketcher.Constraint("Vertical", 2),
    Sketcher.Constraint("Horizontal", 3),
    Sketcher.Constraint("Vertical", 4),
    Sketcher.Constraint("Horizontal", 5),
    Sketcher.Constraint("Vertical", 6),
    Sketcher.Constraint("Horizontal", 7),
    Sketcher.Constraint("Horizontal", 1, 2, 4, 2),
    Sketcher.Constraint("DistanceX", 1, 2, 1, 1, 4.98),
    Sketcher.Constraint("DistanceX", 5, 2, 5, 1, 46.23),
    Sketcher.Constraint("DistanceY", 0, 2, 0, 1, 10.57),
    Sketcher.Constraint("DistanceY", 4, 2, 4, 1, 2.37),
    Sketcher.Constraint("DistanceX", 4, 2, -1, 1, 42.1),
    Sketcher.Constraint("DistanceX", 1, 2, 5, 2, 12.5),
    Sketcher.Constraint("DistanceY", -1, 1, 0, 2, 34.32),
])
sketch16.setExpression("Constraints[17]", "Params.sketch16_width")
sketch16.setExpression("Constraints[18]", "Params.sketch16_width2")
sketch16.setExpression("Constraints[19]", "Params.sketch16_height")
sketch16.setExpression("Constraints[20]", "Params.sketch16_height2")
pad15 = body3.newObject("PartDesign::Pad", "Pad014")
pad15.Profile = sketch16
pad15.setExpression("Length", "Params.pad15_length")
pad15.Reversed = True
body.AllowCompound = True
doc.recompute()

boolean = body.newObject("PartDesign::Boolean", "Boolean")
boolean.Type = "Fuse"
boolean.addObjects([body2])

# Sketch on XZ plane
sketch17 = body.newObject("Sketcher::SketchObject", "Sketch016")
sketch17.AttachmentSupport = (doc.getObject("XZ_Plane"), [""])
sketch17.MapMode = "FlatFace"
sketch17.addGeometry([
    Part.LineSegment(V(62.9, -4.5, 0), V(62.9, -6.9, 0)),
    Part.LineSegment(V(62.9, -6.9, 0), V(22.5, -6.9, 0)),
    Part.LineSegment(V(22.5, -6.9, 0), V(22.5, -4.5, 0)),
    Part.LineSegment(V(22.5, -4.5, 0), V(62.9, -4.5, 0)),
], False)
sketch17.addConstraint([
    Sketcher.Constraint("Coincident", 0, 2, 1, 1),
    Sketcher.Constraint("Coincident", 1, 2, 2, 1),
    Sketcher.Constraint("Coincident", 2, 2, 3, 1),
    Sketcher.Constraint("Coincident", 3, 2, 0, 1),
    Sketcher.Constraint("Vertical", 0),
    Sketcher.Constraint("Horizontal", 1),
    Sketcher.Constraint("Vertical", 2),
    Sketcher.Constraint("Horizontal", 3),
    Sketcher.Constraint("DistanceX", 1, 2, 1, 1, 40.44),
    Sketcher.Constraint("DistanceY", 0, 2, 0, 1, 2.36),
    Sketcher.Constraint("DistanceX", -1, 1, 0, 2, 62.91),
    Sketcher.Constraint("DistanceY", 0, 2, -1, 1, 6.89),
])
sketch17.setExpression("Constraints[8]", "Params.sketch17_width")
sketch17.setExpression("Constraints[9]", "Params.sketch17_height")
pad16 = body.newObject("PartDesign::Pad", "Pad015")
pad16.Profile = sketch17
pad16.Type = "UpToLast"

doc.recompute()
